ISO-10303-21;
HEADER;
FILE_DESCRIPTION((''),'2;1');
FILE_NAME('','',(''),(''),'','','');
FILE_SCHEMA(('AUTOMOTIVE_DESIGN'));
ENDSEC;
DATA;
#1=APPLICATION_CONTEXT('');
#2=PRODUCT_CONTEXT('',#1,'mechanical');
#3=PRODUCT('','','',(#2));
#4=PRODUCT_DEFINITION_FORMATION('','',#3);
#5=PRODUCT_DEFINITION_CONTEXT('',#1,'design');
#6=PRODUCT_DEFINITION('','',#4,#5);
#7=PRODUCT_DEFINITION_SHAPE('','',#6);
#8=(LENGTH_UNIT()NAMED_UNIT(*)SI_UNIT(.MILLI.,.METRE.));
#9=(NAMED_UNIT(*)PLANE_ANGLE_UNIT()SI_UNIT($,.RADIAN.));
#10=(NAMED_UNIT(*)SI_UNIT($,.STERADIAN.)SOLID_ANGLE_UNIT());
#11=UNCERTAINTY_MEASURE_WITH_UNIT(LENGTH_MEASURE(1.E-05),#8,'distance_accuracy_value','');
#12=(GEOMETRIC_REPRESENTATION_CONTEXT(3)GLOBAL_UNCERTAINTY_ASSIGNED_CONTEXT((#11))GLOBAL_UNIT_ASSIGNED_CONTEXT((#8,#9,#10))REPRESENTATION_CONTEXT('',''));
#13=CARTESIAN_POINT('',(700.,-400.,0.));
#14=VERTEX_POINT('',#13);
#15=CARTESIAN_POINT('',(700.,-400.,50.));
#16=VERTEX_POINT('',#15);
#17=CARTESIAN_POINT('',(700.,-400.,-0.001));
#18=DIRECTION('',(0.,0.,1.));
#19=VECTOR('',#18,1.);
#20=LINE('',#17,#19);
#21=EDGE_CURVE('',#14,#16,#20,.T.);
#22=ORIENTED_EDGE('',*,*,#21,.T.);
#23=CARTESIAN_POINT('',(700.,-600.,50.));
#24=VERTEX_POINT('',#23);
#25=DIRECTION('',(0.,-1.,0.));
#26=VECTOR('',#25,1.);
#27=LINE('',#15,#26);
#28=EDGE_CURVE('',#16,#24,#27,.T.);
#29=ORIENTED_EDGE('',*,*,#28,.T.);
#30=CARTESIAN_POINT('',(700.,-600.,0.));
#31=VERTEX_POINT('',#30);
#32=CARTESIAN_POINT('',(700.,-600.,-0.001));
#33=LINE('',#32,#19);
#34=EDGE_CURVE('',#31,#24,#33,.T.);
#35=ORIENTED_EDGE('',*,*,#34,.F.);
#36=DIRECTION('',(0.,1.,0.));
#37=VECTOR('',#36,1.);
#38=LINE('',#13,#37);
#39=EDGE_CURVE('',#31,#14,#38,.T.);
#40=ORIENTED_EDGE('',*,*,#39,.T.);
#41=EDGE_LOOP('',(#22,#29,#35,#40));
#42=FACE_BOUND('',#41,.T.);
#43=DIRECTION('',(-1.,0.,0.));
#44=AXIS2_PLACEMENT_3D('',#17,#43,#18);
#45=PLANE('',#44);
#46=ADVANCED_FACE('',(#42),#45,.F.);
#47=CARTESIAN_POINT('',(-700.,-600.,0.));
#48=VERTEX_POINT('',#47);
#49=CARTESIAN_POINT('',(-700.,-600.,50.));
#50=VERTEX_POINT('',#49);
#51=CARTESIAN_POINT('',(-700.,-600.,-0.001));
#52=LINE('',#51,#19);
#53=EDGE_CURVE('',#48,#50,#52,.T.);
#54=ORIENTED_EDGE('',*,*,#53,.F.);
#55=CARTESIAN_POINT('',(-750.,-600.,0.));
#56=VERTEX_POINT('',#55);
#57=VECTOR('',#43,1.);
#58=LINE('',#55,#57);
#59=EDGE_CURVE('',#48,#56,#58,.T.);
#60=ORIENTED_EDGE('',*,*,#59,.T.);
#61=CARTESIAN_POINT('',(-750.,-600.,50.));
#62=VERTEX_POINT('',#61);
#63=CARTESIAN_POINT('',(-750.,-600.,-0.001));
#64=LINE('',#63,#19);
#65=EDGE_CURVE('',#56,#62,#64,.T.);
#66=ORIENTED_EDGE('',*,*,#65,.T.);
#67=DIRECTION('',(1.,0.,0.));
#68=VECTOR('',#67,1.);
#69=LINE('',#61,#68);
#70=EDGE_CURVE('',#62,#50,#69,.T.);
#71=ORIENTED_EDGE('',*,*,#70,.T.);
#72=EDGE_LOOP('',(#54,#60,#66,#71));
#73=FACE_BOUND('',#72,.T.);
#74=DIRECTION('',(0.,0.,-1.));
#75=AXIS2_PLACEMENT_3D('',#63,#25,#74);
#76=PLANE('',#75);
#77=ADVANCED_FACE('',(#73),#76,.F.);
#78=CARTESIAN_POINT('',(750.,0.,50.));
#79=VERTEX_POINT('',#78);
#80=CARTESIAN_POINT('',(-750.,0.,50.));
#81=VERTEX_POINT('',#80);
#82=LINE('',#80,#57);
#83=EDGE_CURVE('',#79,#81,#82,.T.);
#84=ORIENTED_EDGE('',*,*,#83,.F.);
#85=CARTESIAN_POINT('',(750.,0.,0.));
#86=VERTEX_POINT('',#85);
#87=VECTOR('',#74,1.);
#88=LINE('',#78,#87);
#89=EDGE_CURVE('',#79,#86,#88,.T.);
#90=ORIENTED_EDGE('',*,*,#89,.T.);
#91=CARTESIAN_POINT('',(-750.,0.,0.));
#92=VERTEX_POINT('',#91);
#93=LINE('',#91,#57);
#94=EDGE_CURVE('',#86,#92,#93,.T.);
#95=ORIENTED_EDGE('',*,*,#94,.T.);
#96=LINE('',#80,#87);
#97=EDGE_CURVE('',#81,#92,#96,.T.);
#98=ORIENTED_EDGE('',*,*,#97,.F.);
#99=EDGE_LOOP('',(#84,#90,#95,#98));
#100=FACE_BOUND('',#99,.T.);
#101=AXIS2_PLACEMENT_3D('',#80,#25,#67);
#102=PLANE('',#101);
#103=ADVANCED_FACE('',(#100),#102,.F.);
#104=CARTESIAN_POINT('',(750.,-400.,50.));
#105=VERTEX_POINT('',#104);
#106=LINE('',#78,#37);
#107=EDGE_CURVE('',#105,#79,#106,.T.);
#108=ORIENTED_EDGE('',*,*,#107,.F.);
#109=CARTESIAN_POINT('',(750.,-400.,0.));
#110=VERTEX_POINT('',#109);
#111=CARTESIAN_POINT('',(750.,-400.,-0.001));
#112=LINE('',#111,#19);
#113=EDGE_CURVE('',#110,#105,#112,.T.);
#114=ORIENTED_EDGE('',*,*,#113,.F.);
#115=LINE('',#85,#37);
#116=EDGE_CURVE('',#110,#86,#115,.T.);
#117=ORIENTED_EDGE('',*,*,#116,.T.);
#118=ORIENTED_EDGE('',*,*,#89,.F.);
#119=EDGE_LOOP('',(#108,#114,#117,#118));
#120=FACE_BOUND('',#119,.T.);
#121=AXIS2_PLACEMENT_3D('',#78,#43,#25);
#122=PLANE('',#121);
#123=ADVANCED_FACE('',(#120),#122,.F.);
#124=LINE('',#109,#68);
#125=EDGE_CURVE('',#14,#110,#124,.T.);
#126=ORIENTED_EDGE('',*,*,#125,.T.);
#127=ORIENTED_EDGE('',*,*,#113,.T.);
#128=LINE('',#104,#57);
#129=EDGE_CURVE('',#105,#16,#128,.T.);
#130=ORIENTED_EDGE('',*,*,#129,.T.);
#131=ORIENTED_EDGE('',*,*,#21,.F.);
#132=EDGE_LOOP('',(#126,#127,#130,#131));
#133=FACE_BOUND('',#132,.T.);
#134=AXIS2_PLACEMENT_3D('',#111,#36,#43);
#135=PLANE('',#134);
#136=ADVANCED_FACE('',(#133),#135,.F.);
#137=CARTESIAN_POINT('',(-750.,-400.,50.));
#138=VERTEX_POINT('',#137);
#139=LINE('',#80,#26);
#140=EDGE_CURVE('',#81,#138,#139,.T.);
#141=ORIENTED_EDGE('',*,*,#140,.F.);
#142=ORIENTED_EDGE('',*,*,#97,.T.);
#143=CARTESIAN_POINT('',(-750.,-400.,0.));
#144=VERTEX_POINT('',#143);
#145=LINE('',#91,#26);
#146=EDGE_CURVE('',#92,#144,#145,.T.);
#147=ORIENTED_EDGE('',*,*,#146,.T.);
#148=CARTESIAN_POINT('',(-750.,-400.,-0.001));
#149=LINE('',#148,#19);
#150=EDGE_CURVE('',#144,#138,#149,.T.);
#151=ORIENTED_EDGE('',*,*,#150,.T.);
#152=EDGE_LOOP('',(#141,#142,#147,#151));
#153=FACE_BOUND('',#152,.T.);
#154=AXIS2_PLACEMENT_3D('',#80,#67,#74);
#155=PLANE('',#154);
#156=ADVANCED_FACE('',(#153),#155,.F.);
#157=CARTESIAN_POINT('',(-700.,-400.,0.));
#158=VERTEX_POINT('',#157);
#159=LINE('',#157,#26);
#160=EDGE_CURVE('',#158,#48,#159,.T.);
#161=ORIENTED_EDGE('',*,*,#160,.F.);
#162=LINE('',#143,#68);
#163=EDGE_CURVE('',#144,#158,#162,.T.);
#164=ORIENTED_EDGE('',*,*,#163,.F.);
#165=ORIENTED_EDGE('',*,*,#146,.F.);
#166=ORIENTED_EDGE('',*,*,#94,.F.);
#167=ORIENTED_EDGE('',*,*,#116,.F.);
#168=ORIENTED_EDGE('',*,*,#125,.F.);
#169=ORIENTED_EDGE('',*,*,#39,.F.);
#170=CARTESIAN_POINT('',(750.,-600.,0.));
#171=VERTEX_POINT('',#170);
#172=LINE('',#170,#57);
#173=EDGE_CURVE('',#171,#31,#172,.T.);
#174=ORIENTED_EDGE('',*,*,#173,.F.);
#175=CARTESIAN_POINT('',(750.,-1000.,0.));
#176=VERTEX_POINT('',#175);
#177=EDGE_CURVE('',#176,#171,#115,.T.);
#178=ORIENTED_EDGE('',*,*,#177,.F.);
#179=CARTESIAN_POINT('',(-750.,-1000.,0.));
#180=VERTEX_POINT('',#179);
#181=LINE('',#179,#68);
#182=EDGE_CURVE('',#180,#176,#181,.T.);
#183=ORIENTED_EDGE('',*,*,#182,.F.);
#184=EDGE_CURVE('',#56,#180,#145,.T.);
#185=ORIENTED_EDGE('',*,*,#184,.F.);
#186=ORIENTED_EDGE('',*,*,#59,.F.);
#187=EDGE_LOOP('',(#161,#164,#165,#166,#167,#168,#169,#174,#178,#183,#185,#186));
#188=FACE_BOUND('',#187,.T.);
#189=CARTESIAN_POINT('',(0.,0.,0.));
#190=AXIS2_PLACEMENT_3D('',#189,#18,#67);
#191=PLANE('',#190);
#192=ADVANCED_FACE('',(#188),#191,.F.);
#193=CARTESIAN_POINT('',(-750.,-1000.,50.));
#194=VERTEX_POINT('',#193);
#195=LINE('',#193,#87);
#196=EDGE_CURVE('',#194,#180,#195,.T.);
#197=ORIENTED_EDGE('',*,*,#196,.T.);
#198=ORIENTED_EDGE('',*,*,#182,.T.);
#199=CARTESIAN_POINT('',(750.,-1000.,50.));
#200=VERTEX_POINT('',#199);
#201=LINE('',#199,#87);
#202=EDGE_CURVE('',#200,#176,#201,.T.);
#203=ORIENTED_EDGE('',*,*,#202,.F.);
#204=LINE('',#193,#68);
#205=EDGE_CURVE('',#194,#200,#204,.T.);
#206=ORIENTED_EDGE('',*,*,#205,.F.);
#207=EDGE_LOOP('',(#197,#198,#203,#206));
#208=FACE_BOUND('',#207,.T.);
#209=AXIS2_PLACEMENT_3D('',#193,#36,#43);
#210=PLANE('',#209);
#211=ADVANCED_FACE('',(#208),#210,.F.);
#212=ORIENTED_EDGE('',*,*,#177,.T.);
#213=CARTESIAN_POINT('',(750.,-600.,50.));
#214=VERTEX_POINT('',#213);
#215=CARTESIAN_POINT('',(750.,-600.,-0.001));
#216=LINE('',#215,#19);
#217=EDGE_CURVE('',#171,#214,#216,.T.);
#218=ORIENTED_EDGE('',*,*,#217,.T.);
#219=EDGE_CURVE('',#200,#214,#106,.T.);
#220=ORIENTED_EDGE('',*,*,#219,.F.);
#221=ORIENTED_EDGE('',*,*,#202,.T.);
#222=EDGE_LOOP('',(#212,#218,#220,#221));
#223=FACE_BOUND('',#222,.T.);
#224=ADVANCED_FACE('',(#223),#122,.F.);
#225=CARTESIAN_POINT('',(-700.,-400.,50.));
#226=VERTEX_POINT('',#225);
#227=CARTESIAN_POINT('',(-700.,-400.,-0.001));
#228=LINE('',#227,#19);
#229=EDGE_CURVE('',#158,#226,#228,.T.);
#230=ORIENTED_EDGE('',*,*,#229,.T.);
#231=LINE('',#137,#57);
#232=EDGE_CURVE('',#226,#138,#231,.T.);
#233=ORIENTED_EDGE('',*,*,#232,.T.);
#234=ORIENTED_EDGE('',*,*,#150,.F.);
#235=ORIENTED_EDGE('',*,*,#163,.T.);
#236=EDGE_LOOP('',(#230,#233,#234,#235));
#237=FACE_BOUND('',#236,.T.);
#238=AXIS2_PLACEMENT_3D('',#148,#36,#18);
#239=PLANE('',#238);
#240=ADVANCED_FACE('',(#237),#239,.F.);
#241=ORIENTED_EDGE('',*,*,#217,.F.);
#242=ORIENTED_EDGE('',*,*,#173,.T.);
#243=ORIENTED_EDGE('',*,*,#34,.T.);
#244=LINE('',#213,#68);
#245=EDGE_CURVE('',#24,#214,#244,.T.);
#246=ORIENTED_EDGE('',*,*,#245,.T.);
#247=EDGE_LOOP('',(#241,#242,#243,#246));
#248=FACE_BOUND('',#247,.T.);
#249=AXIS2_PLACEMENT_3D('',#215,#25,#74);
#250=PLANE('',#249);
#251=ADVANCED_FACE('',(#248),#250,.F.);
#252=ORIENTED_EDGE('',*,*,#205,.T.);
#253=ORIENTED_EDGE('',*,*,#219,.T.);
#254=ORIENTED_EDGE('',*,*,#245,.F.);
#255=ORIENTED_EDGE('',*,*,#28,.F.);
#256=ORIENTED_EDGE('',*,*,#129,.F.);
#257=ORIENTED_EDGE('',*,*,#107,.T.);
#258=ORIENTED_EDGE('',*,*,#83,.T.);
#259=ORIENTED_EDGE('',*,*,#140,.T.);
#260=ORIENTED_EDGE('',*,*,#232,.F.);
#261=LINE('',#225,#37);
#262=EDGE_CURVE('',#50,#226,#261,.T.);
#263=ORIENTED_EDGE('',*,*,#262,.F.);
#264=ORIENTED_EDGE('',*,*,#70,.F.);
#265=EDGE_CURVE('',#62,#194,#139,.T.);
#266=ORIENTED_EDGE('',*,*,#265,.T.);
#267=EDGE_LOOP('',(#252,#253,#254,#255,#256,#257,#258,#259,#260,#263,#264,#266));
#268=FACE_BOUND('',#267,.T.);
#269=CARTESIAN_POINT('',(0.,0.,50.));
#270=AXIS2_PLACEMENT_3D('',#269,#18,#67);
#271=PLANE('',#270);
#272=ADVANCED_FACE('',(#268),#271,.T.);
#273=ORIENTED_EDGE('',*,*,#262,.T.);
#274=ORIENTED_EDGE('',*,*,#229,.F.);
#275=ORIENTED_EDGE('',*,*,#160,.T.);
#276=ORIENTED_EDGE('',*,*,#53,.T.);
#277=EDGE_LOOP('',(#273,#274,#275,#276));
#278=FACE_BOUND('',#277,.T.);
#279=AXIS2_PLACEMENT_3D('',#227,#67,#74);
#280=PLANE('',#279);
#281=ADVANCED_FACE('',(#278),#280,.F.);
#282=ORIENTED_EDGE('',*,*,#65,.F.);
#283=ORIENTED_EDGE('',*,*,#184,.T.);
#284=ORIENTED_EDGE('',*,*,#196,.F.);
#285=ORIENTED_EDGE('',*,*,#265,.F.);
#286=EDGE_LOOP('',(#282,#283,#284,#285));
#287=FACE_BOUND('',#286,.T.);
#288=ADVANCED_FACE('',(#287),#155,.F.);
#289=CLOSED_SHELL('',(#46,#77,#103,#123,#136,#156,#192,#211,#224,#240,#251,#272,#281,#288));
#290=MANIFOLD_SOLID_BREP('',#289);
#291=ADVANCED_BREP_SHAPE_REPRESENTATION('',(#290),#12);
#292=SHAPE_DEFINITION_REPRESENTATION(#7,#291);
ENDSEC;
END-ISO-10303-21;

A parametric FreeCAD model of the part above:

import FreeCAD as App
import Part
import Sketcher

V = App.Vector
Q = App.Units.Quantity


def add_polygon(sketch, points):
    """Adds a closed chain of lines whose ends are joined by coincident constraints."""
    first, n = sketch.GeometryCount, len(points)
    for a, b in zip(points, points[1:] + points[:1]):
        sketch.addGeometry(Part.LineSegment(App.Vector(*a, 0), App.Vector(*b, 0)), False)
    for i in range(n):
        sketch.addConstraint(Sketcher.Constraint("Coincident", first + i, 2, first + (i + 1) % n, 1))

doc = App.newDocument("Part")
params = doc.addObject("Spreadsheet::Sheet", "Params")
for row, (alias, value) in enumerate([
    ("sketch1_width", "1500 mm"),
    ("sketch1_height", "1000 mm"),
    ("pad1_length", "50 mm"),
    ("sketch2_width", "50 mm"),
    ("sketch2_height", "200 mm"),
    ("sketch3_width", "50 mm"),
    ("sketch3_height", "200 mm"),
], start=1):
    params.set(f"A{row}", alias)
    params.set(f"B{row}", "=" + value)
    params.setAlias(f"B{row}", alias)

body = doc.addObject("PartDesign::Body", "Body")

# Sketch on XY plane
sketch1 = doc.addObject("Sketcher::SketchObject", "Sketch")
body.addObject(sketch1)
sketch1.AttachmentSupport = (doc.XY_Plane, [""])
sketch1.MapMode = "FlatFace"
add_polygon(sketch1, [(-750, 0), (-750, -1000), (750, -1000), (750, 0)])  # lines 0-3
sketch1.addConstraint([
    Sketcher.Constraint("Vertical", 0),
    Sketcher.Constraint("Horizontal", 1),
    Sketcher.Constraint("Vertical", 2),
    Sketcher.Constraint("Horizontal", 3),
    Sketcher.Constraint("Symmetric", 2, 2, 3, 2, -1, 1),
    Sketcher.Constraint("DistanceX", 1, 1, 1, 2, Q("1500 mm")),
    Sketcher.Constraint("DistanceY", 0, 2, 0, 1, Q("1000 mm")),
])
sketch1.setExpression("Constraints[9]", "Params.sketch1_width")
sketch1.setExpression("Constraints[10]", "Params.sketch1_height")
pad1 = doc.addObject("PartDesign::Pad", "Pad")
body.addObject(pad1)
pad1.Profile = sketch1
pad1.setExpression("Length", "Params.pad1_length")

# Sketch on XY plane
sketch2 = doc.addObject("Sketcher::SketchObject", "Sketch001")
body.addObject(sketch2)
sketch2.AttachmentSupport = (doc.XY_Plane, [""])
sketch2.MapMode = "FlatFace"
sketch2.AttachmentOffset = App.Placement(V(0, 0, 50), App.Rotation())
add_polygon(sketch2, [(-750, -400), (-750, -600), (-700, -600), (-700, -400)])  # lines 0-3
sketch2.addConstraint([
    Sketcher.Constraint("Vertical", 0),
    Sketcher.Constraint("Horizontal", 1),
    Sketcher.Constraint("Vertical", 2),
    Sketcher.Constraint("Horizontal", 3),
    Sketcher.Constraint("DistanceX", 1, 1, 1, 2, Q("50 mm")),
    Sketcher.Constraint("DistanceY", 0, 2, 0, 1, Q("200 mm")),
    Sketcher.Constraint("DistanceX", 0, 2, -1, 1, Q("750 mm")),
    Sketcher.Constraint("DistanceY", 0, 2, -1, 1, Q("600 mm")),
])
sketch2.setExpression("Constraints[8]", "Params.sketch2_width")
sketch2.setExpression("Constraints[9]", "Params.sketch2_height")
pocket1 = doc.addObject("PartDesign::Pocket", "Pocket")
body.addObject(pocket1)
pocket1.Profile = sketch2
pocket1.Type = "UpToFirst"

# Sketch on XY plane
sketch3 = doc.addObject("Sketcher::SketchObject", "Sketch002")
body.addObject(sketch3)
sketch3.AttachmentSupport = (doc.XY_Plane, [""])
sketch3.MapMode = "FlatFace"
sketch3.AttachmentOffset = App.Placement(V(0, 0, 50), App.Rotation())
add_polygon(sketch3, [(700, -400), (700, -600), (750, -600), (750, -400)])  # lines 0-3
sketch3.addConstraint([
    Sketcher.Constraint("Vertical", 0),
    Sketcher.Constraint("Horizontal", 1),
    Sketcher.Constraint("Vertical", 2),
    Sketcher.Constraint("Horizontal", 3),
    Sketcher.Constraint("DistanceX", 1, 1, 1, 2, Q("50 mm")),
    Sketcher.Constraint("DistanceY", 0, 2, 0, 1, Q("200 mm")),
    Sketcher.Constraint("DistanceX", -1, 1, 0, 2, Q("700 mm")),
    Sketcher.Constraint("DistanceY", 0, 2, -1, 1, Q("600 mm")),
])
sketch3.setExpression("Constraints[8]", "Params.sketch3_width")
sketch3.setExpression("Constraints[9]", "Params.sketch3_height")
pocket2 = doc.addObject("PartDesign::Pocket", "Pocket001")
body.addObject(pocket2)
pocket2.Profile = sketch3
pocket2.Type = "UpToFirst"

doc.recompute()
